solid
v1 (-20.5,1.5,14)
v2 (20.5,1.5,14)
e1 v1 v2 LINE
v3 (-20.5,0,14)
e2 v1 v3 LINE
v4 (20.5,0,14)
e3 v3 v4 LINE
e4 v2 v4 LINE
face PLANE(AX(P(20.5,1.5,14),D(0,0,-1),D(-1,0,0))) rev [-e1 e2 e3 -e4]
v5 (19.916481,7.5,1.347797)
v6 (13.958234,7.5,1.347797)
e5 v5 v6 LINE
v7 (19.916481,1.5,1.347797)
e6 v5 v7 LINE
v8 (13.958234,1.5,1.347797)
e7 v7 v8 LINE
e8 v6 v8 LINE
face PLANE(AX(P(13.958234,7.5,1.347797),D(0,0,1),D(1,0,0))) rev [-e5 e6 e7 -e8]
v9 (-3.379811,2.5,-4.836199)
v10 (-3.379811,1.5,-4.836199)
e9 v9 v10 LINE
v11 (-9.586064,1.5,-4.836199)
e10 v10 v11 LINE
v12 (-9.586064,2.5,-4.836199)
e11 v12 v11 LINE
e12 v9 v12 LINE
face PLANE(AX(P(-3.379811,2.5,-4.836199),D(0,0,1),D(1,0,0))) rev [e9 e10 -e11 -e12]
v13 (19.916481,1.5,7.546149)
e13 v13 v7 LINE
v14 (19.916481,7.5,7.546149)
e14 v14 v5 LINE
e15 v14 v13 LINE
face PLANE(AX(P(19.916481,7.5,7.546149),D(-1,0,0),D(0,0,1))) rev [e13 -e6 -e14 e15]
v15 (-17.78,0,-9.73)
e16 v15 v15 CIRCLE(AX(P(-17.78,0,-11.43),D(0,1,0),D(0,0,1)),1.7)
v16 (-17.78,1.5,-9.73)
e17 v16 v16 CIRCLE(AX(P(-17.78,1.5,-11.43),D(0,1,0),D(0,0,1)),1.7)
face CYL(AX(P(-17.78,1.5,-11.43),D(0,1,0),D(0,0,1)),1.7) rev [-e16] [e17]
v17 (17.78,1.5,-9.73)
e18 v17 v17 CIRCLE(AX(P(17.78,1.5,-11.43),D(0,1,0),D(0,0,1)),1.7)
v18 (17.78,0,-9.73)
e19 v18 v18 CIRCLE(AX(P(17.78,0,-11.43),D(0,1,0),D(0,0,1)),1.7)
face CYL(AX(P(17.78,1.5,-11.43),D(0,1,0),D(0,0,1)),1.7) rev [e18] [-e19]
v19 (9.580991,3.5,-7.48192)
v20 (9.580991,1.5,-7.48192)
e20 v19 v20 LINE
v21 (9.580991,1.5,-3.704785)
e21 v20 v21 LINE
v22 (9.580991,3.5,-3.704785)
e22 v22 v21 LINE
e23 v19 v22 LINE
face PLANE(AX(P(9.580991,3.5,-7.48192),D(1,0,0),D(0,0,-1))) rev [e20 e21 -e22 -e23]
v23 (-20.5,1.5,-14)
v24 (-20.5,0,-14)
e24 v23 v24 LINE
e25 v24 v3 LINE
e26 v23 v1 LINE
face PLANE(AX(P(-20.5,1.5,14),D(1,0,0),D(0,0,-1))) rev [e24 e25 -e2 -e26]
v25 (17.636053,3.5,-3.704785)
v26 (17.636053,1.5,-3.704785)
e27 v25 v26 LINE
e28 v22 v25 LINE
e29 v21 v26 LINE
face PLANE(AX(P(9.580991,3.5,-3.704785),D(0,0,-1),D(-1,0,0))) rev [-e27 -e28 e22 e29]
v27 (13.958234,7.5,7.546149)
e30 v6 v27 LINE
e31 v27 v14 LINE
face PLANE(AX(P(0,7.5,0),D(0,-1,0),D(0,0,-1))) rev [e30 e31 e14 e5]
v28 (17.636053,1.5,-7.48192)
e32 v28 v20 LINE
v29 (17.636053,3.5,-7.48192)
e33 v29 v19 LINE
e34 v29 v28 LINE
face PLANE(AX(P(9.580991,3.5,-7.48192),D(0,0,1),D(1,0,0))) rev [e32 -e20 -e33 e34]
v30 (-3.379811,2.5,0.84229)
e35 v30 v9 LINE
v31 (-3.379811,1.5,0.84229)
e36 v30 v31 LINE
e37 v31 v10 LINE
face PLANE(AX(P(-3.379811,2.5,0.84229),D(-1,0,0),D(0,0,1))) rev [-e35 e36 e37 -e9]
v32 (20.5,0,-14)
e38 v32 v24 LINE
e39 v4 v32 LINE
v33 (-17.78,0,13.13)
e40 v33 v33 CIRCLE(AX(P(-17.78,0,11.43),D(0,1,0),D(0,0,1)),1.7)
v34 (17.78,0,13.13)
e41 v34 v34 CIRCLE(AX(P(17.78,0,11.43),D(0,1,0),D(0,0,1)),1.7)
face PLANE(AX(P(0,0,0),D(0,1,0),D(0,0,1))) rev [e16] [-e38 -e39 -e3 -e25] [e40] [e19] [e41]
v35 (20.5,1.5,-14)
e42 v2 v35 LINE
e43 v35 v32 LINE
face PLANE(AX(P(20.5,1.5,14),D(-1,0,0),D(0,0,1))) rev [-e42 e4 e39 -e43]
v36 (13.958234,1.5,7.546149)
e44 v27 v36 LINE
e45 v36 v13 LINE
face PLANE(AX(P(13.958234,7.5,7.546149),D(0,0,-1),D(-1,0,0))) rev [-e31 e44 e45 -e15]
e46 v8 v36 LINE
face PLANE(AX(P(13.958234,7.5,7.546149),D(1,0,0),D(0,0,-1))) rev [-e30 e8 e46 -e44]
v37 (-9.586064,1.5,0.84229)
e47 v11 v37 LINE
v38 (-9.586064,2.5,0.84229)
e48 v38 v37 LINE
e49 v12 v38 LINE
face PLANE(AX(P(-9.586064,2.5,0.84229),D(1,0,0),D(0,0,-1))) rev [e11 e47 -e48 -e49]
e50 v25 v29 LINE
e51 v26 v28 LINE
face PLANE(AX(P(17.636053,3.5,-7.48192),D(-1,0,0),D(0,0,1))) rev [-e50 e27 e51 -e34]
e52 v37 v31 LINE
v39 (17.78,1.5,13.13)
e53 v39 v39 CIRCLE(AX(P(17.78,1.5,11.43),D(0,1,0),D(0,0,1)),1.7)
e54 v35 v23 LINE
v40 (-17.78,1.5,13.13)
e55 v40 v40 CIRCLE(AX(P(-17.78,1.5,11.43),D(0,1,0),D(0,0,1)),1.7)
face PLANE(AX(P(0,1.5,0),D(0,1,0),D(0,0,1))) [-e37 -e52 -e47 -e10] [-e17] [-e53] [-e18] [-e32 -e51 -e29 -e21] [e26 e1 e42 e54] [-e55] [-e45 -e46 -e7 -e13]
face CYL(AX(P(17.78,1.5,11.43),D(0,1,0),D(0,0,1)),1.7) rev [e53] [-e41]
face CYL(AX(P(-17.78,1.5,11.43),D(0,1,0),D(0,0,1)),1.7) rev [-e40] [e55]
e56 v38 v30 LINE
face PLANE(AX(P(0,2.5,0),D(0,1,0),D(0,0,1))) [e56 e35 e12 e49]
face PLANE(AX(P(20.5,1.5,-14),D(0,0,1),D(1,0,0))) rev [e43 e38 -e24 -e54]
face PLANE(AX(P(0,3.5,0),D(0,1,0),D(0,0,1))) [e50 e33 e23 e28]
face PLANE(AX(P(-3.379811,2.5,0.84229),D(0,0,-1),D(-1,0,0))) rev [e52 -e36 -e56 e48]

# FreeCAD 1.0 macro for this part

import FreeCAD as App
import Part
import Sketcher

V = App.Vector


def add_polygon(sketch, points):
    """Adds a closed chain of lines whose ends are joined by coincident constraints."""
    first, n = sketch.GeometryCount, len(points)
    for a, b in zip(points, points[1:] + points[:1]):
        sketch.addGeometry(Part.LineSegment(App.Vector(*a, 0), App.Vector(*b, 0)), False)
    for i in range(n):
        sketch.addConstraint(Sketcher.Constraint("Coincident", first + i, 2, first + (i + 1) % n, 1))

doc = App.newDocument("Part")
params = doc.addObject("Spreadsheet::Sheet", "Params")
for row, (alias, value) in enumerate([
    ("sketch1_width", "41 mm"),
    ("sketch1_height", "28 mm"),
    ("pad1_length", "1.5 mm"),
    ("sketch2_diameter", "3.4 mm"),
    ("hole_diameter", "3.4 mm"),
    ("pad2_length", "1 mm"),
    ("pad3_length", "6 mm"),
    ("pad4_length", "2 mm"),
], start=1):
    params.set(f"A{row}", alias)
    params.set(f"B{row}", "=" + value)
    params.setAlias(f"B{row}", alias)

body = doc.addObject("PartDesign::Body", "Body")

sketch1 = body.newObject("Sketcher::SketchObject", "Sketch")
sketch1.AttachmentSupport = (doc.getObject("XZ_Plane"), [""])
sketch1.MapMode = "FlatFace"
add_polygon(sketch1, [(-20.5, -14), (-20.5, 14), (20.5, 14), (20.5, -14)])
sketch1.addConstraint([
    Sketcher.Constraint("Vertical", 0),
    Sketcher.Constraint("Horizontal", 1),
    Sketcher.Constraint("Vertical", 2),
    Sketcher.Constraint("Horizontal", 3),
    Sketcher.Constraint("Symmetric", 0, 2, 2, 2, -1, 1),
    Sketcher.Constraint("DistanceX", 1, 1, 1, 2, 41.0),
    Sketcher.Constraint("DistanceY", 0, 1, 0, 2, 28.0),
])
sketch1.setExpression("Constraints[9]", "Params.sketch1_width")
sketch1.setExpression("Constraints[10]", "Params.sketch1_height")
pad1 = body.newObject("PartDesign::Pad", "Pad")
pad1.Profile = sketch1
pad1.setExpression("Length", "Params.pad1_length")
pad1.Reversed = True

sketch2 = body.newObject("Sketcher::SketchObject", "Sketch001")
sketch2.AttachmentSupport = (doc.getObject("XZ_Plane"), [""])
sketch2.MapMode = "FlatFace"
sketch2.AttachmentOffset = App.Placement(V(0, 0, -1.5), App.Rotation())
sketch2.addGeometry([
    Part.Circle(V(17.78, 11.43, 0), V(0, 0, 1), 1.7),
    Part.Circle(V(17.78, -11.43, 0), V(0, 0, 1), 1.7),
    Part.Circle(V(-17.78, -11.43, 0), V(0, 0, 1), 1.7),
    Part.Circle(V(-17.78, 11.43, 0), V(0, 0, 1), 1.7),
], False)
sketch2.addConstraint([
    Sketcher.Constraint("Equal", 0, 1),
    Sketcher.Constraint("Equal", 1, 2),
    Sketcher.Constraint("Equal", 2, 3),
    Sketcher.Constraint("Symmetric", 0, 3, 2, 3, -1, 1),
    Sketcher.Constraint("Symmetric", 1, 3, 3, 3, -1, 1),
    Sketcher.Constraint("Symmetric", 1, 3, 2, 3, -2),
    Sketcher.Constraint("Diameter", 0, 3.4),
    Sketcher.Constraint("DistanceX", -1, 1, 0, 3, 17.78),
    Sketcher.Constraint("DistanceY", -1, 1, 0, 3, 11.43),
])
sketch2.setExpression("Constraints[6]", "Params.sketch2_diameter")
doc.recompute()
hole = body.newObject("PartDesign::Hole", "Hole")
hole.Profile = sketch2
hole.ThreadType = "None"
hole.setExpression("Diameter", "Params.hole_diameter")
hole.DepthType = "ThroughAll"
hole.Reversed = True

sketch3 = body.newObject("Sketcher::SketchObject", "Sketch002")
sketch3.AttachmentSupport = (doc.getObject("XZ_Plane"), [""])
sketch3.MapMode = "FlatFace"
sketch3.AttachmentOffset = App.Placement(V(0, 0, -1.5), App.Rotation())
add_polygon(sketch3, [(-9.586064, -4.836199), (-9.586064, 0.84229), (-3.379811, 0.84229), (-3.379811, -4.836199)])
sketch3.addConstraint([
    Sketcher.Constraint("Vertical", 0),
    Sketcher.Constraint("Horizontal", 1),
    Sketcher.Constraint("Vertical", 2),
    Sketcher.Constraint("Horizontal", 3),
    Sketcher.Constraint("DistanceY", 0, 1, 0, 2, 5.678489),
    Sketcher.Constraint("DistanceY", 2, 2, -1, 1, 4.836199),
    Sketcher.Constraint("DistanceX", 1, 1, 1, 2, 6.206252),
    Sketcher.Constraint("DistanceX", 1, 2, -1, 1, 3.379811),
])
pad2 = body.newObject("PartDesign::Pad", "Pad001")
pad2.Profile = sketch3
pad2.setExpression("Length", "Params.pad2_length")
pad2.Reversed = True

sketch4 = body.newObject("Sketcher::SketchObject", "Sketch003")
sketch4.AttachmentSupport = (doc.getObject("XZ_Plane"), [""])
sketch4.MapMode = "FlatFace"
sketch4.AttachmentOffset = App.Placement(V(0, 0, -1.5), App.Rotation())
add_polygon(sketch4, [(13.958234, 1.347797), (13.958234, 7.546149), (19.916481, 7.546149), (19.916481, 1.347797)])
sketch4.addConstraint([
    Sketcher.Constraint("Vertical", 0),
    Sketcher.Constraint("Horizontal", 1),
    Sketcher.Constraint("Vertical", 2),
    Sketcher.Constraint("Horizontal", 3),
    Sketcher.Constraint("DistanceX", 1, 1, 1, 2, 5.958246),
    Sketcher.Constraint("DistanceY", 0, 1, 0, 2, 6.198352),
    Sketcher.Constraint("DistanceY", -1, 1, 0, 2, 7.546149),
    Sketcher.Constraint("DistanceX", -1, 1, 1, 2, 19.916481),
])
pad3 = body.newObject("PartDesign::Pad", "Pad002")
pad3.Profile = sketch4
pad3.setExpression("Length", "Params.pad3_length")
pad3.Reversed = True

sketch5 = body.newObject("Sketcher::SketchObject", "Sketch004")
sketch5.AttachmentSupport = (doc.getObject("XZ_Plane"), [""])
sketch5.MapMode = "FlatFace"
sketch5.AttachmentOffset = App.Placement(V(0, 0, -1.5), App.Rotation())
add_polygon(sketch5, [(9.580991, -7.48192), (9.580991, -3.704785), (17.636053, -3.704785), (17.636053, -7.48192)])
sketch5.addConstraint([
    Sketcher.Constraint("Vertical", 0),
    Sketcher.Constraint("Horizontal", 1),
    Sketcher.Constraint("Vertical", 2),
    Sketcher.Constraint("Horizontal", 3),
    Sketcher.Constraint("DistanceX", 1, 1, 1, 2, 8.055062),
    Sketcher.Constraint("DistanceY", 0, 1, 0, 2, 3.777135),
    Sketcher.Constraint("DistanceX", -1, 1, 0, 2, 9.580991),
    Sketcher.Constraint("DistanceY", 2, 2, -1, 1, 7.48192),
])
pad4 = body.newObject("PartDesign::Pad", "Pad003")
pad4.Profile = sketch5
pad4.setExpression("Length", "Params.pad4_length")
pad4.Reversed = True

doc.recompute()
